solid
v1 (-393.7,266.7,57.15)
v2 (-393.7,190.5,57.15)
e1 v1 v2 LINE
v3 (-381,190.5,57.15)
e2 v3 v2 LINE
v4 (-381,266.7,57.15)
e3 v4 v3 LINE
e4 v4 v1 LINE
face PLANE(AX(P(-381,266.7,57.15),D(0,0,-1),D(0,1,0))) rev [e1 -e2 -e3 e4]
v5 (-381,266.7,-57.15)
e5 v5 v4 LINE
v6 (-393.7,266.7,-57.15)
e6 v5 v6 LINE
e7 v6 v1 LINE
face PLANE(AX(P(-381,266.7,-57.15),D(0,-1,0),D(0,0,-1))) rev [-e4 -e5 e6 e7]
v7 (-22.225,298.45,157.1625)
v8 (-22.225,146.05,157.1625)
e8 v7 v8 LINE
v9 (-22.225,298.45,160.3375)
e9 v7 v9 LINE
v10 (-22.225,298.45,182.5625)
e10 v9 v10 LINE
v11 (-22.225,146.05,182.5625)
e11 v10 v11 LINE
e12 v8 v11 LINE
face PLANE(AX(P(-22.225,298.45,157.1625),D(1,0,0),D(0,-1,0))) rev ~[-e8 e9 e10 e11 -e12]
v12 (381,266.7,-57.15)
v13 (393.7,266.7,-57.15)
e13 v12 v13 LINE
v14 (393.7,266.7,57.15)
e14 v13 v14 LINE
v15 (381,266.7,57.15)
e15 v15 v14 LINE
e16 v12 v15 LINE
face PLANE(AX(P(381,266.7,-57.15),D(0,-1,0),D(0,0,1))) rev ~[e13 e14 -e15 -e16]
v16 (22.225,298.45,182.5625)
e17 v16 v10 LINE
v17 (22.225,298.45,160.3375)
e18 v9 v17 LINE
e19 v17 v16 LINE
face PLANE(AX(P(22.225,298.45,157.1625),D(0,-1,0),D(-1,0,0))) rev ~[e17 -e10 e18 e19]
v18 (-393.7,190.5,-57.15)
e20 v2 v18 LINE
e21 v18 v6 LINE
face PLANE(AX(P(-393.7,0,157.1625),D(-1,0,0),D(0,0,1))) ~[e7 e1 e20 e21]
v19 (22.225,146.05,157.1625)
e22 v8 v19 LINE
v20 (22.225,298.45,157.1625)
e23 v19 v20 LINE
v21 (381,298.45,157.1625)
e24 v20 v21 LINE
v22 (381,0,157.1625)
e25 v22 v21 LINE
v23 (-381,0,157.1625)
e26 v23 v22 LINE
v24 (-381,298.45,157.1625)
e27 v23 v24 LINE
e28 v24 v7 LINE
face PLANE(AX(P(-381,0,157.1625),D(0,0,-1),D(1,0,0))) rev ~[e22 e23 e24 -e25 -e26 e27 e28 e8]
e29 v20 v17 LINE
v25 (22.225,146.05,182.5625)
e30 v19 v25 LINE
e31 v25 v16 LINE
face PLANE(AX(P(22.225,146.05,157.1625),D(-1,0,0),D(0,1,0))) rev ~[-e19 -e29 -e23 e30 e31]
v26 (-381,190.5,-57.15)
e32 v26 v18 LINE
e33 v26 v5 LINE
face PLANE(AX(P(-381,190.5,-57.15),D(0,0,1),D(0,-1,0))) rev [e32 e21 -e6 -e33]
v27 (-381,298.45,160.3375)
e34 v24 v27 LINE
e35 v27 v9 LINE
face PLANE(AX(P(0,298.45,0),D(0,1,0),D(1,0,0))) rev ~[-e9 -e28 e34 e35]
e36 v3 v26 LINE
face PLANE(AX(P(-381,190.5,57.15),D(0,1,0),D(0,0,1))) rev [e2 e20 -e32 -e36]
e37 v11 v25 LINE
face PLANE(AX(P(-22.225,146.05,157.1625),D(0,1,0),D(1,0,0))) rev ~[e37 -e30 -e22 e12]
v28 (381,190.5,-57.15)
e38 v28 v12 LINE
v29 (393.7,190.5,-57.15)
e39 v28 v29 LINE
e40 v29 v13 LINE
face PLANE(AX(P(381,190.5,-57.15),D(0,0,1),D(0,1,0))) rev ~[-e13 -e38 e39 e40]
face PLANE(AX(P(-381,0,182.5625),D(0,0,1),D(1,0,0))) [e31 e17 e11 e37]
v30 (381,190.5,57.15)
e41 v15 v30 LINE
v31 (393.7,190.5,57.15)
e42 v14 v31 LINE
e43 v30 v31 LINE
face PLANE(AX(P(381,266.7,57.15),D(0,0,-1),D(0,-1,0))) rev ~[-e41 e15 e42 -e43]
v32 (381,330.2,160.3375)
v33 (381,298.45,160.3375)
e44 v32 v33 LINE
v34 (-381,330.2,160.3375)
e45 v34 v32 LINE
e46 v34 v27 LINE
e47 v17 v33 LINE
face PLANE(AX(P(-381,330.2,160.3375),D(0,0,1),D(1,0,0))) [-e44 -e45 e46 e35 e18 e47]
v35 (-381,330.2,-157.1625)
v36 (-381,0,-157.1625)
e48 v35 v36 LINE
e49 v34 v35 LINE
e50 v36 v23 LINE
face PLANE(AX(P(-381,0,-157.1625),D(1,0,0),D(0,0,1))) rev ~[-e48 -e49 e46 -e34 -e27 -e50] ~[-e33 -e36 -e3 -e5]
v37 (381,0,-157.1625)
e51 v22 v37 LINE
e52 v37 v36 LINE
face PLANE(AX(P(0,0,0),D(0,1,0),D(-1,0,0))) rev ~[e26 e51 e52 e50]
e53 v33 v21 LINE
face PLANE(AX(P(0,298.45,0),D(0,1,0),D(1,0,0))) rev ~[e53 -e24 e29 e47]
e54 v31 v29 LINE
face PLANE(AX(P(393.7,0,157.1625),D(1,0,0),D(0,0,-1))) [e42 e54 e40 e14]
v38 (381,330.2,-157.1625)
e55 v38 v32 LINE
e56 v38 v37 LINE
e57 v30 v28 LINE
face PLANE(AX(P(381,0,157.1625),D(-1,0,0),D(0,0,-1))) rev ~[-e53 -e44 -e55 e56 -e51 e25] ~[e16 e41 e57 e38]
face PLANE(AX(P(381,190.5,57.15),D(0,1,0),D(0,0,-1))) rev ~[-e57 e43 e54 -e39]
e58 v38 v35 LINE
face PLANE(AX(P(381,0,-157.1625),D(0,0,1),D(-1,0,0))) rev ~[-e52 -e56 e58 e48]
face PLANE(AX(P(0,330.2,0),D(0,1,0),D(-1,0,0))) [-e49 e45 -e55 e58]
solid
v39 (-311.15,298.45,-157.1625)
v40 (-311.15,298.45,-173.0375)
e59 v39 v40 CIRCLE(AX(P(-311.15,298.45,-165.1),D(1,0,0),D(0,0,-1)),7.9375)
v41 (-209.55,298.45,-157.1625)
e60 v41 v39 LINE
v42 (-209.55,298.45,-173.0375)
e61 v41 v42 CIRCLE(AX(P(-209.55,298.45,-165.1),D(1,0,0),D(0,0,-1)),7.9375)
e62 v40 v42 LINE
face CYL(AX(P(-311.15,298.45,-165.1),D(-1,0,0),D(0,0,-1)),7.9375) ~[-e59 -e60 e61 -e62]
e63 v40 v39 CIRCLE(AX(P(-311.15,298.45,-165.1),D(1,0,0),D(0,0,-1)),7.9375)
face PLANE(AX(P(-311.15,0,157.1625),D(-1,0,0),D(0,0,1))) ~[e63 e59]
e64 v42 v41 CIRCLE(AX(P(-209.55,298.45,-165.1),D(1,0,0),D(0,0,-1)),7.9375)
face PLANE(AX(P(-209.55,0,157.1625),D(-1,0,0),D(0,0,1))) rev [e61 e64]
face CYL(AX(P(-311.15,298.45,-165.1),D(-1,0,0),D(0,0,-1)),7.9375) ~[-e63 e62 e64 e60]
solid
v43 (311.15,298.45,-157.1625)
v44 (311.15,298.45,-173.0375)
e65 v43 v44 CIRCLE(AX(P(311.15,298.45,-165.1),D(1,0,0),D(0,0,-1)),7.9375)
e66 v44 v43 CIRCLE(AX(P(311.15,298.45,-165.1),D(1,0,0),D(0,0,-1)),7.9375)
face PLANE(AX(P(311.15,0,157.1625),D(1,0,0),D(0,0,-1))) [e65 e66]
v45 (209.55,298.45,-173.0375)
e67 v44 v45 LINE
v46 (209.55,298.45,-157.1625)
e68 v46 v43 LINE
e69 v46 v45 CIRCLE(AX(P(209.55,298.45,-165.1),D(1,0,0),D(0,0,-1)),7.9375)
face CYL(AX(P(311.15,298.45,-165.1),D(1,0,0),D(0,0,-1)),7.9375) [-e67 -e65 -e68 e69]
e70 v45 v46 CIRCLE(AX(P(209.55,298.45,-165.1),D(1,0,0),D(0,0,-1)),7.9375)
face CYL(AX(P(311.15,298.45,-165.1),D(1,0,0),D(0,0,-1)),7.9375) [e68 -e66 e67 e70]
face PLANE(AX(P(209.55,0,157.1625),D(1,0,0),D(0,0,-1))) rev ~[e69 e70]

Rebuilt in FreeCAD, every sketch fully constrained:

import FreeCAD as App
import Part
import Sketcher

V = App.Vector
Q = App.Units.Quantity


def add_polygon(sketch, points):
    """Adds a closed chain of lines whose ends are joined by coincident constraints."""
    first, n = sketch.GeometryCount, len(points)
    for a, b in zip(points, points[1:] + points[:1]):
        sketch.addGeometry(Part.LineSegment(App.Vector(*a, 0), App.Vector(*b, 0)), False)
    for i in range(n):
        sketch.addConstraint(Sketcher.Constraint("Coincident", first + i, 2, first + (i + 1) % n, 1))

doc = App.newDocument("Part")
body = doc.addObject("PartDesign::Body", "Body")
body.AllowCompound = True

sketch1 = doc.addObject("Sketcher::SketchObject", "Sketch")
body.addObject(sketch1)
sketch1.AttachmentSupport = (doc.XZ_Plane, [""])
sketch1.MapMode = "FlatFace"
add_polygon(sketch1, [(-381, -157), (-381, 157), (381, 157), (381, -157)])
sketch1.addConstraint([
    Sketcher.Constraint("Vertical", 0),
    Sketcher.Constraint("Horizontal", 1),
    Sketcher.Constraint("Vertical", 2),
    Sketcher.Constraint("Horizontal", 3),
    Sketcher.Constraint("Symmetric", 0, 2, 2, 2, -1, 1),
    Sketcher.Constraint("DistanceX", 1, 1, 1, 2, Q("30 in")),
    Sketcher.Constraint("DistanceY", 0, 1, 0, 2, Q("12.375 in")),
])
pad1 = doc.addObject("PartDesign::Pad", "Pad")
body.addObject(pad1)
pad1.Profile = sketch1
pad1.Length = Q("13 in")
pad1.Reversed = True

sketch2 = doc.addObject("Sketcher::SketchObject", "Sketch001")
body.addObject(sketch2)
sketch2.AttachmentSupport = (doc.XZ_Plane, [""])
sketch2.MapMode = "FlatFace"
sketch2.AttachmentOffset = App.Placement(V(0, 0, -13 * 25.4), App.Rotation())
add_polygon(sketch2, [(381, -157), (-381, -157), (-381, 160), (381, 160)])
sketch2.addConstraint([
    Sketcher.Constraint("Horizontal", 0),
    Sketcher.Constraint("Vertical", 1),
    Sketcher.Constraint("Horizontal", 2),
    Sketcher.Constraint("Vertical", 3),
    Sketcher.Constraint("DistanceX", 0, 2, 0, 1, Q("30 in")),
    Sketcher.Constraint("DistanceY", 1, 1, 1, 2, Q("12.5 in")),
    Sketcher.Constraint("DistanceX", 0, 2, -1, 1, Q("15 in")),
    Sketcher.Constraint("DistanceY", 0, 2, -1, 1, Q("6.1875 in")),
])
pad2 = doc.addObject("PartDesign::Pad", "Pad001")
body.addObject(pad2)
pad2.Profile = sketch2
pad2.Length = Q("1.25 in")

sketch3 = doc.addObject("Sketcher::SketchObject", "Sketch002")
body.addObject(sketch3)
sketch3.AttachmentSupport = (doc.XY_Plane, [""])
sketch3.MapMode = "FlatFace"
sketch3.AttachmentOffset = App.Placement(V(0, 0, 6.1875 * 25.4), App.Rotation())
add_polygon(sketch3, [(-22, 298), (-22, 146), (22, 146), (22, 298)])
sketch3.addConstraint([
    Sketcher.Constraint("Vertical", 0),
    Sketcher.Constraint("Horizontal", 1),
    Sketcher.Constraint("Vertical", 2),
    Sketcher.Constraint("Horizontal", 3),
    Sketcher.Constraint("DistanceX", 1, 1, 1, 2, Q("1.75 in")),
    Sketcher.Constraint("DistanceY", 0, 2, 0, 1, Q("6 in")),
    Sketcher.Constraint("DistanceY", -1, 1, 0, 2, Q("5.75 in")),
    Sketcher.Constraint("DistanceX", 0, 2, -1, 1, Q("0.875 in")),
])
pad3 = doc.addObject("PartDesign::Pad", "Pad002")
body.addObject(pad3)
pad3.Profile = sketch3
pad3.Length = Q("1 in")

sketch4 = doc.addObject("Sketcher::SketchObject", "Sketch003")
body.addObject(sketch4)
sketch4.AttachmentSupport = (doc.YZ_Plane, [""])
sketch4.MapMode = "FlatFace"
sketch4.AttachmentOffset = App.Placement(V(0, 0, 15 * 25.4), App.Rotation())
add_polygon(sketch4, [(267, 57), (190, 57), (190, -57), (267, -57)])
sketch4.addConstraint([
    Sketcher.Constraint("Horizontal", 0),
    Sketcher.Constraint("Vertical", 1),
    Sketcher.Constraint("Horizontal", 2),
    Sketcher.Constraint("Vertical", 3),
    Sketcher.Constraint("DistanceX", 0, 2, 0, 1, Q("3 in")),
    Sketcher.Constraint("DistanceY", 1, 2, 1, 1, Q("4.5 in")),
    Sketcher.Constraint("DistanceX", -1, 1, 0, 2, Q("7.5 in")),
    Sketcher.Constraint("DistanceY", -1, 1, 0, 2, Q("2.25 in")),
])
pad4 = doc.addObject("PartDesign::Pad", "Pad003")
body.addObject(pad4)
pad4.Profile = sketch4
pad4.Length = Q("0.5 in")

sketch5 = doc.addObject("Sketcher::SketchObject", "Sketch004")
body.addObject(sketch5)
sketch5.AttachmentSupport = (doc.YZ_Plane, [""])
sketch5.MapMode = "FlatFace"
sketch5.AttachmentOffset = App.Placement(V(0, 0, 12.25 * 25.4), App.Rotation())
sketch5.addGeometry(Part.Circle(V(298, -165, 0), V(0, 0, 1), 8), False)
sketch5.addConstraint([
    Sketcher.Constraint("Diameter", 0, Q("0.625 in")),
    Sketcher.Constraint("DistanceY", 0, 3, -1, 1, Q("6.5 in")),
    Sketcher.Constraint("DistanceX", -1, 1, 0, 3, Q("11.75 in")),
])
pad5 = doc.addObject("PartDesign::Pad", "Pad004")
body.addObject(pad5)
pad5.Profile = sketch5
pad5.Length = Q("4 in")
pad5.Reversed = True
doc.recompute()

mirrored = doc.addObject("PartDesign::Mirrored", "Mirrored")
body.addObject(mirrored)
mirrored.Originals = [pad5, pad4]
mirrored.MirrorPlane = (doc.YZ_Plane, [""])
body.Tip = mirrored

doc.recompute()
